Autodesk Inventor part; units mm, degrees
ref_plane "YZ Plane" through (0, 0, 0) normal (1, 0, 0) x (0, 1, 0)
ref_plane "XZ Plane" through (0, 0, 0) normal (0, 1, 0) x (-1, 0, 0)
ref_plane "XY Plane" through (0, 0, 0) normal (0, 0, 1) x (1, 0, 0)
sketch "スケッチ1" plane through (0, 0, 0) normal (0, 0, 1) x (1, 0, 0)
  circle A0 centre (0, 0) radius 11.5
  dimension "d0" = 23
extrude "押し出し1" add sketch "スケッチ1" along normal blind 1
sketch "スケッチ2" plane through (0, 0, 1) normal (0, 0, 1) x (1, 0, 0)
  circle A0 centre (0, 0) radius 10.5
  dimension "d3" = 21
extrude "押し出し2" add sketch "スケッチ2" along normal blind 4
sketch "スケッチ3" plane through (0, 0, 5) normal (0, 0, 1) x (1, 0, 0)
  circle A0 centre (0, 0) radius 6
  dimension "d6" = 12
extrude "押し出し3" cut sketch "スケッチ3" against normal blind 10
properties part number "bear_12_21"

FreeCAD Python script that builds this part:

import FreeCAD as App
import Part
import Sketcher
from FreeCAD import Vector
Q = App.Units.Quantity

doc = App.newDocument("Part")
body = doc.addObject("PartDesign::Body", "Body")

# Sketch on XY plane
sketch1 = body.newObject("Sketcher::SketchObject", "Sketch")
sketch1.AttachmentSupport = (doc.getObject("XY_Plane"), [""])
sketch1.MapMode = "FlatFace"
sketch1.addGeometry(Part.Circle(Vector(0, 0, 0), Vector(0, 0, 1), 12), False)
sketch1.addConstraint(Sketcher.Constraint("Coincident", 0, 3, -1, 1))
sketch1.addConstraint(Sketcher.Constraint("Diameter", 0, Q("23 mm")))
pad1 = body.newObject("PartDesign::Pad", "Pad")
pad1.Profile = sketch1
pad1.Length = 1

# Sketch on XY plane
sketch2 = body.newObject("Sketcher::SketchObject", "Sketch001")
sketch2.AttachmentSupport = (doc.getObject("XY_Plane"), [""])
sketch2.MapMode = "FlatFace"
sketch2.AttachmentOffset = App.Placement(Vector(0, 0, 1), App.Rotation())
sketch2.addGeometry(Part.Circle(Vector(0, 0, 0), Vector(0, 0, 1), 10), False)
sketch2.addConstraint(Sketcher.Constraint("Coincident", 0, 3, -1, 1))
sketch2.addConstraint(Sketcher.Constraint("Diameter", 0, Q("21 mm")))
pad2 = body.newObject("PartDesign::Pad", "Pad001")
pad2.Profile = sketch2
pad2.Length = 4

# Sketch on XY plane
sketch3 = body.newObject("Sketcher::SketchObject", "Sketch002")
sketch3.AttachmentSupport = (doc.getObject("XY_Plane"), [""])
sketch3.MapMode = "FlatFace"
sketch3.AttachmentOffset = App.Placement(Vector(0, 0, 5), App.Rotation())
sketch3.addGeometry(Part.Circle(Vector(0, 0, 0), Vector(0, 0, 1), 6), False)
sketch3.addConstraint(Sketcher.Constraint("Coincident", 0, 3, -1, 1))
sketch3.addConstraint(Sketcher.Constraint("Diameter", 0, Q("12 mm")))
pocket1 = body.newObject("PartDesign::Pocket", "Pocket")
pocket1.Profile = sketch3
pocket1.Length = 10

doc.recompute()
